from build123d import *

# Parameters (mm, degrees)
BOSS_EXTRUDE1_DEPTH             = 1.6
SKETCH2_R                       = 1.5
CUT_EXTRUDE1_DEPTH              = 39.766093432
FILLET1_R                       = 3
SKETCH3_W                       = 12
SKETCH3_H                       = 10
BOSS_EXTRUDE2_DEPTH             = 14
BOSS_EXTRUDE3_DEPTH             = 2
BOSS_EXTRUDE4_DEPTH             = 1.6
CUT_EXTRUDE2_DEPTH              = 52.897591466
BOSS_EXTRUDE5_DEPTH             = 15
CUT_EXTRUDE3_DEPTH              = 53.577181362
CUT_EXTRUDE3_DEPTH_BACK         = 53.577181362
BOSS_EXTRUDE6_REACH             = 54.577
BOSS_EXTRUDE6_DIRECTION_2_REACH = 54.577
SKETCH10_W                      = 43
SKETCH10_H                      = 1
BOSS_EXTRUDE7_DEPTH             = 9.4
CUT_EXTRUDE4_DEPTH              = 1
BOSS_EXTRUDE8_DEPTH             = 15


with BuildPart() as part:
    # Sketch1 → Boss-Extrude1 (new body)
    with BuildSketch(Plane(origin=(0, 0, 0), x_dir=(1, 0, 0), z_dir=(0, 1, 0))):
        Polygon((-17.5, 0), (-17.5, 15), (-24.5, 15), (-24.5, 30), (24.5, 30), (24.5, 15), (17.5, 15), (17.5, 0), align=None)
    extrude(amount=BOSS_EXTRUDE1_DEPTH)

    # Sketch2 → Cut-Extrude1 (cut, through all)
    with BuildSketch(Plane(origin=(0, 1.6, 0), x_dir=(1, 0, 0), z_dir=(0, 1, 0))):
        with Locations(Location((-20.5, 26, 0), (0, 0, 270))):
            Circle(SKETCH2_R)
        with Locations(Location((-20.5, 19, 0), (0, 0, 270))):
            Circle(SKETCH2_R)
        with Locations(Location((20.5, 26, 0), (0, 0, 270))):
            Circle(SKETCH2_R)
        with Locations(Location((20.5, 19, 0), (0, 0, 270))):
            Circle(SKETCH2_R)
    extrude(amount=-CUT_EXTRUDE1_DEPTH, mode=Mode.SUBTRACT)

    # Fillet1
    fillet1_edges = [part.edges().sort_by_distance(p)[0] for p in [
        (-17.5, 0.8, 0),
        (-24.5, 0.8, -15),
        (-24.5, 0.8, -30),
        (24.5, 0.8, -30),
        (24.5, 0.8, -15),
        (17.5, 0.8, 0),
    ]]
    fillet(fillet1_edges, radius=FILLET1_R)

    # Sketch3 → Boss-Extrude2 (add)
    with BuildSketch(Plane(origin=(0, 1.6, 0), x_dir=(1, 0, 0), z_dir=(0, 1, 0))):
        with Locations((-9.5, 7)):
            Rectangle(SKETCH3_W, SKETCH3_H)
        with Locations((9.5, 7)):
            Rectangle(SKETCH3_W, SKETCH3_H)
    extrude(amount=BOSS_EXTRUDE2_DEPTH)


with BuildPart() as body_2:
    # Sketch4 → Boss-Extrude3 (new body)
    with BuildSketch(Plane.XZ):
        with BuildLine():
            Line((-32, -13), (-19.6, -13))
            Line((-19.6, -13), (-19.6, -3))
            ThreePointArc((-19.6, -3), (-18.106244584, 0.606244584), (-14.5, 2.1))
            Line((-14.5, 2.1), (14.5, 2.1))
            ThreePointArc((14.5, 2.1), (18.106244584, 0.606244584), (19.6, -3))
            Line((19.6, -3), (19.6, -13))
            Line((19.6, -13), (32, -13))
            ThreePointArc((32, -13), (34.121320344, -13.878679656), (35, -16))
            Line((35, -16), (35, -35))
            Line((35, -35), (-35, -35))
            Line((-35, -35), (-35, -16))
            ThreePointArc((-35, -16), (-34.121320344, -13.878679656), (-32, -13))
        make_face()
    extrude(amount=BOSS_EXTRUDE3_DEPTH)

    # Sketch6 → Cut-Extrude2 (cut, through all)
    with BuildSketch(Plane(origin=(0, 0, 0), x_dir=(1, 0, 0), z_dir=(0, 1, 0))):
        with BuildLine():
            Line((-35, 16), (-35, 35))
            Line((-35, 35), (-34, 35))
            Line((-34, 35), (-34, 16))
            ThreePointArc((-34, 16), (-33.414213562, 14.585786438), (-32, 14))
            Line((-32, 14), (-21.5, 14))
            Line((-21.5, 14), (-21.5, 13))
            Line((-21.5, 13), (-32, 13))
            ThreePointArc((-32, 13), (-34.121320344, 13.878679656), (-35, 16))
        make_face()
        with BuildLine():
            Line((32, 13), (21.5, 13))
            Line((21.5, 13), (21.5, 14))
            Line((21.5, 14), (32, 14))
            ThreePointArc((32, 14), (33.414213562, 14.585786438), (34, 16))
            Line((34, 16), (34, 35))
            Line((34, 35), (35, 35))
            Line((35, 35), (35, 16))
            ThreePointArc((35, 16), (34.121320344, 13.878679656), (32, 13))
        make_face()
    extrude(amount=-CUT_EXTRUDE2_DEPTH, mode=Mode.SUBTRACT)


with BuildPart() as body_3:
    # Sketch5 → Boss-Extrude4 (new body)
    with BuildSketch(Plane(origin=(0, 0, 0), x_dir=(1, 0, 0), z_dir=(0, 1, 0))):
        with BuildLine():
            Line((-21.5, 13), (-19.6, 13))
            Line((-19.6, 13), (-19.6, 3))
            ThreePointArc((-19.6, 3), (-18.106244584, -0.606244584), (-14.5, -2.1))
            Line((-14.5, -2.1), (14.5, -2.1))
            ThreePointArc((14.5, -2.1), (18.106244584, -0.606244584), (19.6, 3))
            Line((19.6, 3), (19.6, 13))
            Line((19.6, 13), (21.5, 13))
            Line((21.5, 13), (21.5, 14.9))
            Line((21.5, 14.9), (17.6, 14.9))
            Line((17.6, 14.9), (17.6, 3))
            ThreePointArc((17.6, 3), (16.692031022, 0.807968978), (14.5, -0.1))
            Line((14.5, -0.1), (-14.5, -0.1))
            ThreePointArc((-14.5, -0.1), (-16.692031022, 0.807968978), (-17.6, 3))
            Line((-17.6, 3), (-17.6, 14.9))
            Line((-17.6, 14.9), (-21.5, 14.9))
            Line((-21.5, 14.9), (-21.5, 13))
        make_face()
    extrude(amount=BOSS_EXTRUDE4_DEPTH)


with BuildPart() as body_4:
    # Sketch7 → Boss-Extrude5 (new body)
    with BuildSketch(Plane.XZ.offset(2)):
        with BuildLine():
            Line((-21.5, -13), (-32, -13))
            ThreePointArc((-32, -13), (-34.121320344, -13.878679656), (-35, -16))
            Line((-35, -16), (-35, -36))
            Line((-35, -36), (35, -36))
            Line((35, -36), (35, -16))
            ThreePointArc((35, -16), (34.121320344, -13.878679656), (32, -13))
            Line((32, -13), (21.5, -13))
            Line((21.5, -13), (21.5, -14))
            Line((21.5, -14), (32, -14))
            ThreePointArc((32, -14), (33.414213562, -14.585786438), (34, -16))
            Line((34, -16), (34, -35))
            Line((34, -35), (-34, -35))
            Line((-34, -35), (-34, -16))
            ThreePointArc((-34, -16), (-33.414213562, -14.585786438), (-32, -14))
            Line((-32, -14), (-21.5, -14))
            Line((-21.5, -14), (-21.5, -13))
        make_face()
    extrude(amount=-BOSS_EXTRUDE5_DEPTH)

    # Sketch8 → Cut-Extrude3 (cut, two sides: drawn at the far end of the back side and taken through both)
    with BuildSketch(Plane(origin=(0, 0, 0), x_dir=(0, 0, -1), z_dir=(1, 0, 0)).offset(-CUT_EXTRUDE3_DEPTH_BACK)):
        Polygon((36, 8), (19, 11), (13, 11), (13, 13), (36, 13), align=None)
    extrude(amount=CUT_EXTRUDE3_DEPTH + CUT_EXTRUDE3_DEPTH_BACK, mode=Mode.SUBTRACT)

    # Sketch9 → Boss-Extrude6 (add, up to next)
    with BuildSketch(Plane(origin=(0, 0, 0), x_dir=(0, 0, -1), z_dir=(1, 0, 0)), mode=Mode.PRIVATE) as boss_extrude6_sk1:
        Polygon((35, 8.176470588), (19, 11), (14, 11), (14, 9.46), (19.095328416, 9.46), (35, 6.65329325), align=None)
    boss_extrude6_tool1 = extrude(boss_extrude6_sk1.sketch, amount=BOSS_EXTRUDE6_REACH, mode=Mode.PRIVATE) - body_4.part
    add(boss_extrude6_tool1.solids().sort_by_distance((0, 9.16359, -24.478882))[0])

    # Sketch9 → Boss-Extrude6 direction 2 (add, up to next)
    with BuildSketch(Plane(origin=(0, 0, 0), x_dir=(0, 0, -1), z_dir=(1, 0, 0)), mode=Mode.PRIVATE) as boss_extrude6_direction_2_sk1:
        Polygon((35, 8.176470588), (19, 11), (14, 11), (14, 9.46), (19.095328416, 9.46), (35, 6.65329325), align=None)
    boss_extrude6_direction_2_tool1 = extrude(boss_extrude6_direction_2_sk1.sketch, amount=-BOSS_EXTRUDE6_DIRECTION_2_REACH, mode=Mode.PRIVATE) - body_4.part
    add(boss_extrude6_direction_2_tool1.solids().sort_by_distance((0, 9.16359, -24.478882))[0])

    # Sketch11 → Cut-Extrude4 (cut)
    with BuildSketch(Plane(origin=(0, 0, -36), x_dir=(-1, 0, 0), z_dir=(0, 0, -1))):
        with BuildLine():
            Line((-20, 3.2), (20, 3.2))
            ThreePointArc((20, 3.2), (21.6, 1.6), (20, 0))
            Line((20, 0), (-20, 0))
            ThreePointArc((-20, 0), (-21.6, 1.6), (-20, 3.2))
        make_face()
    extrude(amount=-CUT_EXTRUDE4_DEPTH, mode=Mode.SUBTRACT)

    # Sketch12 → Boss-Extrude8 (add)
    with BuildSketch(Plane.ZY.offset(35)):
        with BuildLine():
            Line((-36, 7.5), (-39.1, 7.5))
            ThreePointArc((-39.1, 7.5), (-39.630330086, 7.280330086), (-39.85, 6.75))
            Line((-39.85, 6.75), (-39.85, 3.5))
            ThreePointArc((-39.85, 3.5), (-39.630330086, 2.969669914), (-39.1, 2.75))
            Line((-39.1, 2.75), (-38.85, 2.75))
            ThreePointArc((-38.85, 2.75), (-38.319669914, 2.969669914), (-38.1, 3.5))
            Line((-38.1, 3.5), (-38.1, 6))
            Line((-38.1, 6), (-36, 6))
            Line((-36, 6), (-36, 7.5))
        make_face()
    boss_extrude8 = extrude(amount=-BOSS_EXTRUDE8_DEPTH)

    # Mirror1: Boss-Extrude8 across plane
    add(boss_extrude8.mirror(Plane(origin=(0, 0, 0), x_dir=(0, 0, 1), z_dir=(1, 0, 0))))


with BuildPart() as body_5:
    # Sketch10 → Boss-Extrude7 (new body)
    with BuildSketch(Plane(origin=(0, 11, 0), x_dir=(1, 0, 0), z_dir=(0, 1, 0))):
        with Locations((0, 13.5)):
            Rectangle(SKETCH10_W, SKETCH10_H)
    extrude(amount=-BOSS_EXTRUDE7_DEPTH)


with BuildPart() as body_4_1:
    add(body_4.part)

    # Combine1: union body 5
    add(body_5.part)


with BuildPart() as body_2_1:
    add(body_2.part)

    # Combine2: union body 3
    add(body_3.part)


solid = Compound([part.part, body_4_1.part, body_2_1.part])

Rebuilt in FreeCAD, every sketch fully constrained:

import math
import FreeCAD as App
import Part
import Sketcher

V = App.Vector
Q = App.Units.Quantity


def edges_at(feature, points):
    """Names of the edges that pass closest to the given points."""
    edges = feature.Shape.Edges
    near = lambda p: min(range(len(edges)), key=lambda i: edges[i].distToShape(Part.Vertex(*p))[0])
    return sorted({f"Edge{near(p) + 1}" for p in points})

doc = App.newDocument("Part")
body = doc.addObject("PartDesign::Body", "Body")

sketch1 = body.newObject("Sketcher::SketchObject", "Sketch")
sketch1.AttachmentSupport = (doc.getObject("XZ_Plane"), [""])
sketch1.MapMode = "FlatFace"
sketch1.addGeometry(Part.LineSegment(V(-18, -15, 0), V(-18, 0, 0)), False)
sketch1.addGeometry(Part.LineSegment(V(-18, 0, 0), V(18, 0, 0)), False)
sketch1.addGeometry(Part.LineSegment(V(18, 0, 0), V(18, -15, 0)), False)
sketch1.addGeometry(Part.LineSegment(V(18, -15, 0), V(24, -15, 0)), False)
sketch1.addGeometry(Part.LineSegment(V(24, -15, 0), V(24, -30, 0)), False)
sketch1.addGeometry(Part.LineSegment(V(24, -30, 0), V(-24, -30, 0)), False)
sketch1.addGeometry(Part.LineSegment(V(-24, -30, 0), V(-24, -15, 0)), False)
sketch1.addGeometry(Part.LineSegment(V(-24, -15, 0), V(-18, -15, 0)), False)
sketch1.addConstraint(Sketcher.Constraint("Coincident", 0, 2, 1, 1))
sketch1.addConstraint(Sketcher.Constraint("Coincident", 1, 2, 2, 1))
sketch1.addConstraint(Sketcher.Constraint("Coincident", 2, 2, 3, 1))
sketch1.addConstraint(Sketcher.Constraint("Coincident", 3, 2, 4, 1))
sketch1.addConstraint(Sketcher.Constraint("Coincident", 4, 2, 5, 1))
sketch1.addConstraint(Sketcher.Constraint("Coincident", 5, 2, 6, 1))
sketch1.addConstraint(Sketcher.Constraint("Coincident", 6, 2, 7, 1))
sketch1.addConstraint(Sketcher.Constraint("Coincident", 7, 2, 0, 1))
sketch1.addConstraint(Sketcher.Constraint("Vertical", 0))
sketch1.addConstraint(Sketcher.Constraint("Horizontal", 1))
sketch1.addConstraint(Sketcher.Constraint("Vertical", 2))
sketch1.addConstraint(Sketcher.Constraint("Horizontal", 3))
sketch1.addConstraint(Sketcher.Constraint("Vertical", 4))
sketch1.addConstraint(Sketcher.Constraint("Horizontal", 5))
sketch1.addConstraint(Sketcher.Constraint("Vertical", 6))
sketch1.addConstraint(Sketcher.Constraint("Horizontal", 7))
sketch1.addConstraint(Sketcher.Constraint("Symmetric", 0, 2, 1, 2, -1, 1))
sketch1.addConstraint(Sketcher.Constraint("Symmetric", 3, 2, 6, 2, -2))
sketch1.addConstraint(Sketcher.Constraint("Equal", 2, 4))
sketch1.addConstraint(Sketcher.Constraint("DistanceX", 1, 1, 1, 2, Q("35 mm")))
sketch1.addConstraint(Sketcher.Constraint("DistanceX", 3, 1, 3, 2, Q("7 mm")))
sketch1.addConstraint(Sketcher.Constraint("DistanceY", 0, 1, 0, 2, Q("15 mm")))
pad1 = body.newObject("PartDesign::Pad", "Pad")
pad1.Profile = sketch1
pad1.Length = 1.6
pad1.Reversed = True

sketch2 = body.newObject("Sketcher::SketchObject", "Sketch001")
sketch2.AttachmentSupport = (doc.getObject("XZ_Plane"), [""])
sketch2.MapMode = "FlatFace"
sketch2.AttachmentOffset = App.Placement(V(0, 0, -1.6), App.Rotation())
sketch2.addGeometry(Part.Circle(V(-20.5, -26, 0), V(0, 0, 1), 1.5), False)
sketch2.addGeometry(Part.Circle(V(-20.5, -19, 0), V(0, 0, 1), 1.5), False)
sketch2.addGeometry(Part.Circle(V(20.5, -26, 0), V(0, 0, 1), 1.5), False)
sketch2.addGeometry(Part.Circle(V(20.5, -19, 0), V(0, 0, 1), 1.5), False)
sketch2.addConstraint(Sketcher.Constraint("Equal", 0, 1))
sketch2.addConstraint(Sketcher.Constraint("Equal", 1, 2))
sketch2.addConstraint(Sketcher.Constraint("Equal", 2, 3))
sketch2.addConstraint(Sketcher.Constraint("Symmetric", 0, 3, 2, 3, -2))
sketch2.addConstraint(Sketcher.Constraint("Symmetric", 1, 3, 3, 3, -2))
sketch2.addConstraint(Sketcher.Constraint("Vertical", 0, 3, 1, 3))
sketch2.addConstraint(Sketcher.Constraint("Diameter", 0, Q("3 mm")))
sketch2.addConstraint(Sketcher.Constraint("DistanceY", 0, 3, -1, 1, Q("26 mm")))
sketch2.addConstraint(Sketcher.Constraint("DistanceY", 1, 3, -1, 1, Q("19 mm")))
sketch2.addConstraint(Sketcher.Constraint("DistanceX", 0, 3, 2, 3, Q("41 mm")))
pocket1 = body.newObject("PartDesign::Pocket", "Pocket")
pocket1.Profile = sketch2
pocket1.Type = "ThroughAll"
pocket1.Reversed = True
doc.recompute()

fillet = body.newObject("PartDesign::Fillet", "Fillet")
fillet.Base = (pocket1, edges_at(pocket1, [
    (-17.5, 0.8, 0),
    (-24.5, 0.8, -15),
    (-24.5, 0.8, -30),
    (24.5, 0.8, -30),
    (24.5, 0.8, -15),
    (17.5, 0.8, 0),
]))
fillet.Radius = 3

sketch3 = body.newObject("Sketcher::SketchObject", "Sketch002")
sketch3.AttachmentSupport = (doc.getObject("XZ_Plane"), [""])
sketch3.MapMode = "FlatFace"
sketch3.AttachmentOffset = App.Placement(V(0, 0, -1.6), App.Rotation())
sketch3.addGeometry(Part.LineSegment(V(-16, -12, 0), V(-16, -2, 0)), False)
sketch3.addGeometry(Part.LineSegment(V(-16, -2, 0), V(-4, -2, 0)), False)
sketch3.addGeometry(Part.LineSegment(V(-4, -2, 0), V(-4, -12, 0)), False)
sketch3.addGeometry(Part.LineSegment(V(-4, -12, 0), V(-16, -12, 0)), False)
sketch3.addGeometry(Part.LineSegment(V(4, -12, 0), V(4, -2, 0)), False)
sketch3.addGeometry(Part.LineSegment(V(4, -2, 0), V(16, -2, 0)), False)
sketch3.addGeometry(Part.LineSegment(V(16, -2, 0), V(16, -12, 0)), False)
sketch3.addGeometry(Part.LineSegment(V(16, -12, 0), V(4, -12, 0)), False)
sketch3.addConstraint(Sketcher.Constraint("Coincident", 0, 2, 1, 1))
sketch3.addConstraint(Sketcher.Constraint("Coincident", 1, 2, 2, 1))
sketch3.addConstraint(Sketcher.Constraint("Coincident", 2, 2, 3, 1))
sketch3.addConstraint(Sketcher.Constraint("Coincident", 3, 2, 0, 1))
sketch3.addConstraint(Sketcher.Constraint("Coincident", 4, 2, 5, 1))
sketch3.addConstraint(Sketcher.Constraint("Coincident", 5, 2, 6, 1))
sketch3.addConstraint(Sketcher.Constraint("Coincident", 6, 2, 7, 1))
sketch3.addConstraint(Sketcher.Constraint("Coincident", 7, 2, 4, 1))
sketch3.addConstraint(Sketcher.Constraint("Vertical", 0))
sketch3.addConstraint(Sketcher.Constraint("Horizontal", 1))
sketch3.addConstraint(Sketcher.Constraint("Vertical", 2))
sketch3.addConstraint(Sketcher.Constraint("Horizontal", 3))
sketch3.addConstraint(Sketcher.Constraint("Vertical", 4))
sketch3.addConstraint(Sketcher.Constraint("Horizontal", 5))
sketch3.addConstraint(Sketcher.Constraint("Vertical", 6))
sketch3.addConstraint(Sketcher.Constraint("Horizontal", 7))
sketch3.addConstraint(Sketcher.Constraint("Symmetric", 1, 2, 4, 2, -2))
sketch3.addConstraint(Sketcher.Constraint("Symmetric", 3, 2, 6, 2, -2))
sketch3.addConstraint(Sketcher.Constraint("DistanceX", 1, 1, 1, 2, Q("12 mm")))
sketch3.addConstraint(Sketcher.Constraint("DistanceY", 0, 1, 0, 2, Q("10 mm")))
sketch3.addConstraint(Sketcher.Constraint("DistanceY", 0, 2, -1, 1, Q("2 mm")))
sketch3.addConstraint(Sketcher.Constraint("DistanceX", 1, 2, 4, 2, Q("7 mm")))
pad2 = body.newObject("PartDesign::Pad", "Pad001")
pad2.Profile = sketch3
pad2.Length = 14
pad2.Reversed = True
body2 = doc.addObject("PartDesign::Body", "Body001")

sketch4 = body2.newObject("Sketcher::SketchObject", "Sketch003")
sketch4.AttachmentSupport = (doc.getObject("XZ_Plane001"), [""])
sketch4.MapMode = "FlatFace"
sketch4.addGeometry(Part.LineSegment(V(-19.6, -13, 0), V(-32, -13, 0)), False)
sketch4.addGeometry(Part.ArcOfCircle(Part.Circle(V(-32, -16, 0), V(0, 0, 1), 3), math.radians(90), math.radians(180)), False)
sketch4.addGeometry(Part.LineSegment(V(-35, -16, 0), V(-35, -35, 0)), False)
sketch4.addGeometry(Part.LineSegment(V(-35, -35, 0), V(35, -35, 0)), False)
sketch4.addGeometry(Part.LineSegment(V(35, -35, 0), V(35, -16, 0)), False)
sketch4.addGeometry(Part.ArcOfCircle(Part.Circle(V(32, -16, 0), V(0, 0, 1), 3), math.radians(0), math.radians(90)), False)
sketch4.addGeometry(Part.LineSegment(V(32, -13, 0), V(19.6, -13, 0)), False)
sketch4.addGeometry(Part.LineSegment(V(19.6, -13, 0), V(19.6, -3, 0)), False)
sketch4.addGeometry(Part.ArcOfCircle(Part.Circle(V(14.5, -3, 0), V(0, 0, 1), 5.1), math.radians(0), math.radians(90)), False)
sketch4.addGeometry(Part.LineSegment(V(14.5, 2.1, 0), V(-14.5, 2.1, 0)), False)
sketch4.addGeometry(Part.ArcOfCircle(Part.Circle(V(-14.5, -3, 0), V(0, 0, 1), 5.1), math.radians(90), math.radians(180)), False)
sketch4.addGeometry(Part.LineSegment(V(-19.6, -3, 0), V(-19.6, -13, 0)), False)
sketch4.addConstraint(Sketcher.Constraint("Tangent", 0, 2, 1, 1))
sketch4.addConstraint(Sketcher.Constraint("Tangent", 1, 2, 2, 1))
sketch4.addConstraint(Sketcher.Constraint("Coincident", 2, 2, 3, 1))
sketch4.addConstraint(Sketcher.Constraint("Coincident", 3, 2, 4, 1))
sketch4.addConstraint(Sketcher.Constraint("Tangent", 4, 2, 5, 1))
sketch4.addConstraint(Sketcher.Constraint("Tangent", 5, 2, 6, 1))
sketch4.addConstraint(Sketcher.Constraint("Coincident", 6, 2, 7, 1))
sketch4.addConstraint(Sketcher.Constraint("Tangent", 7, 2, 8, 1))
sketch4.addConstraint(Sketcher.Constraint("Tangent", 8, 2, 9, 1))
sketch4.addConstraint(Sketcher.Constraint("Tangent", 9, 2, 10, 1))
sketch4.addConstraint(Sketcher.Constraint("Tangent", 10, 2, 11, 1))
sketch4.addConstraint(Sketcher.Constraint("Coincident", 11, 2, 0, 1))
sketch4.addConstraint(Sketcher.Constraint("Horizontal", 0))
sketch4.addConstraint(Sketcher.Constraint("Vertical", 2))
sketch4.addConstraint(Sketcher.Constraint("Horizontal", 3))
sketch4.addConstraint(Sketcher.Constraint("Vertical", 4))
sketch4.addConstraint(Sketcher.Constraint("Horizontal", 6))
sketch4.addConstraint(Sketcher.Constraint("Vertical", 7))
sketch4.addConstraint(Sketcher.Constraint("Horizontal", 9))
sketch4.addConstraint(Sketcher.Constraint("Vertical", 11))
sketch4.addConstraint(Sketcher.Constraint("Equal", 1, 5))
sketch4.addConstraint(Sketcher.Constraint("Equal", 8, 10))
sketch4.addConstraint(Sketcher.Constraint("Symmetric", 1, 3, 5, 3, -2))
sketch4.addConstraint(Sketcher.Constraint("Equal", 0, 6))
sketch4.addConstraint(Sketcher.Constraint("Radius", 1, Q("3 mm")))
sketch4.addConstraint(Sketcher.Constraint("Radius", 8, Q("5.1 mm")))
sketch4.addConstraint(Sketcher.Constraint("DistanceX", 3, 1, 3, 2, Q("70 mm")))
sketch4.addConstraint(Sketcher.Constraint("DistanceX", 9, 2, 9, 1, Q("29 mm")))
sketch4.addConstraint(Sketcher.Constraint("DistanceY", 2, 2, 2, 1, Q("19 mm")))
sketch4.addConstraint(Sketcher.Constraint("DistanceY", 7, 1, 7, 2, Q("10 mm")))
sketch4.addConstraint(Sketcher.Constraint("DistanceY", 1, 3, -1, 1, Q("16 mm")))
pad3 = body2.newObject("PartDesign::Pad", "Pad002")
pad3.Profile = sketch4
pad3.Length = 2

sketch5 = body2.newObject("Sketcher::SketchObject", "Sketch004")
sketch5.AttachmentSupport = (doc.getObject("XZ_Plane001"), [""])
sketch5.MapMode = "FlatFace"
sketch5.addGeometry(Part.LineSegment(V(-35, -35, 0), V(-35, -16, 0)), False)
sketch5.addGeometry(Part.ArcOfCircle(Part.Circle(V(-32, -16, 0), V(0, 0, 1), 3), math.radians(90), math.radians(180)), False)
sketch5.addGeometry(Part.LineSegment(V(-32, -13, 0), V(-21.5, -13, 0)), False)
sketch5.addGeometry(Part.LineSegment(V(-21.5, -13, 0), V(-21.5, -14, 0)), False)
sketch5.addGeometry(Part.LineSegment(V(-21.5, -14, 0), V(-32, -14, 0)), False)
sketch5.addGeometry(Part.ArcOfCircle(Part.Circle(V(-32, -16, 0), V(0, 0, 1), 2), math.radians(90), math.radians(180)), False)
sketch5.addGeometry(Part.LineSegment(V(-34, -16, 0), V(-34, -35, 0)), False)
sketch5.addGeometry(Part.LineSegment(V(-34, -35, 0), V(-35, -35, 0)), False)
sketch5.addGeometry(Part.LineSegment(V(21.5, -13, 0), V(32, -13, 0)), False)
sketch5.addGeometry(Part.ArcOfCircle(Part.Circle(V(32, -16, 0), V(0, 0, 1), 3), math.radians(0), math.radians(90)), False)
sketch5.addGeometry(Part.LineSegment(V(35, -16, 0), V(35, -35, 0)), False)
sketch5.addGeometry(Part.LineSegment(V(35, -35, 0), V(34, -35, 0)), False)
sketch5.addGeometry(Part.LineSegment(V(34, -35, 0), V(34, -16, 0)), False)
sketch5.addGeometry(Part.ArcOfCircle(Part.Circle(V(32, -16, 0), V(0, 0, 1), 2), math.radians(0), math.radians(90)), False)
sketch5.addGeometry(Part.LineSegment(V(32, -14, 0), V(21.5, -14, 0)), False)
sketch5.addGeometry(Part.LineSegment(V(21.5, -14, 0), V(21.5, -13, 0)), False)
sketch5.addConstraint(Sketcher.Constraint("Tangent", 0, 2, 1, 2))
sketch5.addConstraint(Sketcher.Constraint("Tangent", 1, 1, 2, 1))
sketch5.addConstraint(Sketcher.Constraint("Coincident", 2, 2, 3, 1))
sketch5.addConstraint(Sketcher.Constraint("Coincident", 3, 2, 4, 1))
sketch5.addConstraint(Sketcher.Constraint("Tangent", 4, 2, 5, 1))
sketch5.addConstraint(Sketcher.Constraint("Tangent", 5, 2, 6, 1))
sketch5.addConstraint(Sketcher.Constraint("Coincident", 6, 2, 7, 1))
sketch5.addConstraint(Sketcher.Constraint("Coincident", 7, 2, 0, 1))
sketch5.addConstraint(Sketcher.Constraint("Tangent", 8, 2, 9, 2))
sketch5.addConstraint(Sketcher.Constraint("Tangent", 9, 1, 10, 1))
sketch5.addConstraint(Sketcher.Constraint("Coincident", 10, 2, 11, 1))
sketch5.addConstraint(Sketcher.Constraint("Coincident", 11, 2, 12, 1))
sketch5.addConstraint(Sketcher.Constraint("Tangent", 12, 2, 13, 1))
sketch5.addConstraint(Sketcher.Constraint("Tangent", 13, 2, 14, 1))
sketch5.addConstraint(Sketcher.Constraint("Coincident", 14, 2, 15, 1))
sketch5.addConstraint(Sketcher.Constraint("Coincident", 15, 2, 8, 1))
sketch5.addConstraint(Sketcher.Constraint("Vertical", 0))
sketch5.addConstraint(Sketcher.Constraint("Horizontal", 2))
sketch5.addConstraint(Sketcher.Constraint("Vertical", 3))
sketch5.addConstraint(Sketcher.Constraint("Horizontal", 4))
sketch5.addConstraint(Sketcher.Constraint("Vertical", 6))
sketch5.addConstraint(Sketcher.Constraint("Horizontal", 7))
sketch5.addConstraint(Sketcher.Constraint("Horizontal", 8))
sketch5.addConstraint(Sketcher.Constraint("Vertical", 10))
sketch5.addConstraint(Sketcher.Constraint("Horizontal", 11))
sketch5.addConstraint(Sketcher.Constraint("Vertical", 12))
sketch5.addConstraint(Sketcher.Constraint("Horizontal", 14))
sketch5.addConstraint(Sketcher.Constraint("Vertical", 15))
sketch5.addConstraint(Sketcher.Constraint("Coincident", 5, 3, 1, 3))
sketch5.addConstraint(Sketcher.Constraint("Coincident", 13, 3, 9, 3))
sketch5.addConstraint(Sketcher.Constraint("Equal", 1, 9))
sketch5.addConstraint(Sketcher.Constraint("Equal", 5, 13))
sketch5.addConstraint(Sketcher.Constraint("Symmetric", 1, 3, 9, 3, -2))
sketch5.addConstraint(Sketcher.Constraint("Horizontal", 7, 2, 10, 2))
sketch5.addConstraint(Sketcher.Constraint("Equal", 4, 8))
sketch5.addConstraint(Sketcher.Constraint("Radius", 1, Q("3 mm")))
sketch5.addConstraint(Sketcher.Constraint("Radius", 5, Q("2 mm")))
sketch5.addConstraint(Sketcher.Constraint("DistanceY", 0, 1, 0, 2, Q("19 mm")))
sketch5.addConstraint(Sketcher.Constraint("DistanceX", 2, 1, 2, 2, Q("10.5 mm")))
sketch5.addConstraint(Sketcher.Constraint("DistanceX", 1, 3, -1, 1, Q("32 mm")))
sketch5.addConstraint(Sketcher.Constraint("DistanceY", 1, 3, -1, 1, Q("16 mm")))
pocket2 = body2.newObject("PartDesign::Pocket", "Pocket001")
pocket2.Profile = sketch5
pocket2.Type = "ThroughAll"
pocket2.Reversed = True
body3 = doc.addObject("PartDesign::Body", "Body002")

sketch6 = body3.newObject("Sketcher::SketchObject", "Sketch005")
sketch6.AttachmentSupport = (doc.getObject("XZ_Plane002"), [""])
sketch6.MapMode = "FlatFace"
sketch6.addGeometry(Part.LineSegment(V(-21.5, -13, 0), V(-19.6, -13, 0)), False)
sketch6.addGeometry(Part.LineSegment(V(-19.6, -13, 0), V(-19.6, -3, 0)), False)
sketch6.addGeometry(Part.ArcOfCircle(Part.Circle(V(-14.5, -3, 0), V(0, 0, 1), 5.1), math.radians(90), math.radians(180)), False)
sketch6.addGeometry(Part.LineSegment(V(-14.5, 2.1, 0), V(14.5, 2.1, 0)), False)
sketch6.addGeometry(Part.ArcOfCircle(Part.Circle(V(14.5, -3, 0), V(0, 0, 1), 5.1), math.radians(0), math.radians(90)), False)
sketch6.addGeometry(Part.LineSegment(V(19.6, -3, 0), V(19.6, -13, 0)), False)
sketch6.addGeometry(Part.LineSegment(V(19.6, -13, 0), V(21.5, -13, 0)), False)
sketch6.addGeometry(Part.LineSegment(V(21.5, -13, 0), V(21.5, -14.9, 0)), False)
sketch6.addGeometry(Part.LineSegment(V(21.5, -14.9, 0), V(17.6, -14.9, 0)), False)
sketch6.addGeometry(Part.LineSegment(V(17.6, -14.9, 0), V(17.6, -3, 0)), False)
sketch6.addGeometry(Part.ArcOfCircle(Part.Circle(V(14.5, -3, 0), V(0, 0, 1), 3.1), math.radians(0), math.radians(90)), False)
sketch6.addGeometry(Part.LineSegment(V(14.5, 0.1, 0), V(-14.5, 0.1, 0)), False)
sketch6.addGeometry(Part.ArcOfCircle(Part.Circle(V(-14.5, -3, 0), V(0, 0, 1), 3.1), math.radians(90), math.radians(180)), False)
sketch6.addGeometry(Part.LineSegment(V(-17.6, -3, 0), V(-17.6, -14.9, 0)), False)
sketch6.addGeometry(Part.LineSegment(V(-17.6, -14.9, 0), V(-21.5, -14.9, 0)), False)
sketch6.addGeometry(Part.LineSegment(V(-21.5, -14.9, 0), V(-21.5, -13, 0)), False)
sketch6.addConstraint(Sketcher.Constraint("Coincident", 0, 2, 1, 1))
sketch6.addConstraint(Sketcher.Constraint("Tangent", 1, 2, 2, 2))
sketch6.addConstraint(Sketcher.Constraint("Tangent", 2, 1, 3, 1))
sketch6.addConstraint(Sketcher.Constraint("Tangent", 3, 2, 4, 2))
sketch6.addConstraint(Sketcher.Constraint("Tangent", 4, 1, 5, 1))
sketch6.addConstraint(Sketcher.Constraint("Coincident", 5, 2, 6, 1))
sketch6.addConstraint(Sketcher.Constraint("Coincident", 6, 2, 7, 1))
sketch6.addConstraint(Sketcher.Constraint("Coincident", 7, 2, 8, 1))
sketch6.addConstraint(Sketcher.Constraint("Coincident", 8, 2, 9, 1))
sketch6.addConstraint(Sketcher.Constraint("Tangent", 9, 2, 10, 1))
sketch6.addConstraint(Sketcher.Constraint("Tangent", 10, 2, 11, 1))
sketch6.addConstraint(Sketcher.Constraint("Tangent", 11, 2, 12, 1))
sketch6.addConstraint(Sketcher.Constraint("Tangent", 12, 2, 13, 1))
sketch6.addConstraint(Sketcher.Constraint("Coincident", 13, 2, 14, 1))
sketch6.addConstraint(Sketcher.Constraint("Coincident", 14, 2, 15, 1))
sketch6.addConstraint(Sketcher.Constraint("Coincident", 15, 2, 0, 1))
sketch6.addConstraint(Sketcher.Constraint("Horizontal", 0))
sketch6.addConstraint(Sketcher.Constraint("Vertical", 1))
sketch6.addConstraint(Sketcher.Constraint("Horizontal", 3))
sketch6.addConstraint(Sketcher.Constraint("Vertical", 5))
sketch6.addConstraint(Sketcher.Constraint("Horizontal", 6))
sketch6.addConstraint(Sketcher.Constraint("Vertical", 7))
sketch6.addConstraint(Sketcher.Constraint("Horizontal", 8))
sketch6.addConstraint(Sketcher.Constraint("Vertical", 9))
sketch6.addConstraint(Sketcher.Constraint("Horizontal", 11))
sketch6.addConstraint(Sketcher.Constraint("Vertical", 13))
sketch6.addConstraint(Sketcher.Constraint("Horizontal", 14))
sketch6.addConstraint(Sketcher.Constraint("Vertical", 15))
sketch6.addConstraint(Sketcher.Constraint("Coincident", 10, 3, 4, 3))
sketch6.addConstraint(Sketcher.Constraint("Coincident", 12, 3, 2, 3))
sketch6.addConstraint(Sketcher.Constraint("Equal", 2, 4))
sketch6.addConstraint(Sketcher.Constraint("Symmetric", 0, 2, 5, 2, -2))
sketch6.addConstraint(Sketcher.Constraint("Symmetric", 7, 2, 14, 2, -2))
sketch6.addConstraint(Sketcher.Constraint("Equal", 6, 7))
sketch6.addConstraint(Sketcher.Constraint("Radius", 2, Q("5.1 mm")))
sketch6.addConstraint(Sketcher.Constraint("Radius", 10, Q("3.1 mm")))
sketch6.addConstraint(Sketcher.Constraint("DistanceX", 3, 1, 3, 2, Q("29 mm")))
sketch6.addConstraint(Sketcher.Constraint("DistanceY", 1, 1, 1, 2, Q("10 mm")))
sketch6.addConstraint(Sketcher.Constraint("DistanceX", 0, 1, 0, 2, Q("1.9 mm")))
sketch6.addConstraint(Sketcher.Constraint("DistanceY", 2, 3, -1, 1, Q("3 mm")))
pad4 = body3.newObject("PartDesign::Pad", "Pad003")
pad4.Profile = sketch6
pad4.Length = 1.6
pad4.Reversed = True
body4 = doc.addObject("PartDesign::Body", "Body003")

sketch7 = body4.newObject("Sketcher::SketchObject", "Sketch006")
sketch7.AttachmentSupport = (doc.getObject("XZ_Plane003"), [""])
sketch7.MapMode = "FlatFace"
sketch7.AttachmentOffset = App.Placement(V(0, 0, 2), App.Rotation())
sketch7.addGeometry(Part.LineSegment(V(-21.5, -13, 0), V(-32, -13, 0)), False)
sketch7.addGeometry(Part.ArcOfCircle(Part.Circle(V(-32, -16, 0), V(0, 0, 1), 3), math.radians(90), math.radians(180)), False)
sketch7.addGeometry(Part.LineSegment(V(-35, -16, 0), V(-35, -36, 0)), False)
sketch7.addGeometry(Part.LineSegment(V(-35, -36, 0), V(35, -36, 0)), False)
sketch7.addGeometry(Part.LineSegment(V(35, -36, 0), V(35, -16, 0)), False)
sketch7.addGeometry(Part.ArcOfCircle(Part.Circle(V(32, -16, 0), V(0, 0, 1), 3), math.radians(0), math.radians(90)), False)
sketch7.addGeometry(Part.LineSegment(V(32, -13, 0), V(21.5, -13, 0)), False)
sketch7.addGeometry(Part.LineSegment(V(21.5, -13, 0), V(21.5, -14, 0)), False)
sketch7.addGeometry(Part.LineSegment(V(21.5, -14, 0), V(32, -14, 0)), False)
sketch7.addGeometry(Part.ArcOfCircle(Part.Circle(V(32, -16, 0), V(0, 0, 1), 2), math.radians(0), math.radians(90)), False)
sketch7.addGeometry(Part.LineSegment(V(34, -16, 0), V(34, -35, 0)), False)
sketch7.addGeometry(Part.LineSegment(V(34, -35, 0), V(-34, -35, 0)), False)
sketch7.addGeometry(Part.LineSegment(V(-34, -35, 0), V(-34, -16, 0)), False)
sketch7.addGeometry(Part.ArcOfCircle(Part.Circle(V(-32, -16, 0), V(0, 0, 1), 2), math.radians(90), math.radians(180)), False)
sketch7.addGeometry(Part.LineSegment(V(-32, -14, 0), V(-21.5, -14, 0)), False)
sketch7.addGeometry(Part.LineSegment(V(-21.5, -14, 0), V(-21.5, -13, 0)), False)
sketch7.addConstraint(Sketcher.Constraint("Tangent", 0, 2, 1, 1))
sketch7.addConstraint(Sketcher.Constraint("Tangent", 1, 2, 2, 1))
sketch7.addConstraint(Sketcher.Constraint("Coincident", 2, 2, 3, 1))
sketch7.addConstraint(Sketcher.Constraint("Coincident", 3, 2, 4, 1))
sketch7.addConstraint(Sketcher.Constraint("Tangent", 4, 2, 5, 1))
sketch7.addConstraint(Sketcher.Constraint("Tangent", 5, 2, 6, 1))
sketch7.addConstraint(Sketcher.Constraint("Coincident", 6, 2, 7, 1))
sketch7.addConstraint(Sketcher.Constraint("Coincident", 7, 2, 8, 1))
sketch7.addConstraint(Sketcher.Constraint("Tangent", 8, 2, 9, 2))
sketch7.addConstraint(Sketcher.Constraint("Tangent", 9, 1, 10, 1))
sketch7.addConstraint(Sketcher.Constraint("Coincident", 10, 2, 11, 1))
sketch7.addConstraint(Sketcher.Constraint("Coincident", 11, 2, 12, 1))
sketch7.addConstraint(Sketcher.Constraint("Tangent", 12, 2, 13, 2))
sketch7.addConstraint(Sketcher.Constraint("Tangent", 13, 1, 14, 1))
sketch7.addConstraint(Sketcher.Constraint("Coincident", 14, 2, 15, 1))
sketch7.addConstraint(Sketcher.Constraint("Coincident", 15, 2, 0, 1))
sketch7.addConstraint(Sketcher.Constraint("Horizontal", 0))
sketch7.addConstraint(Sketcher.Constraint("Vertical", 2))
sketch7.addConstraint(Sketcher.Constraint("Horizontal", 3))
sketch7.addConstraint(Sketcher.Constraint("Vertical", 4))
sketch7.addConstraint(Sketcher.Constraint("Horizontal", 6))
sketch7.addConstraint(Sketcher.Constraint("Vertical", 7))
sketch7.addConstraint(Sketcher.Constraint("Horizontal", 8))
sketch7.addConstraint(Sketcher.Constraint("Vertical", 10))
sketch7.addConstraint(Sketcher.Constraint("Horizontal", 11))
sketch7.addConstraint(Sketcher.Constraint("Vertical", 12))
sketch7.addConstraint(Sketcher.Constraint("Horizontal", 14))
sketch7.addConstraint(Sketcher.Constraint("Vertical", 15))
sketch7.addConstraint(Sketcher.Constraint("Coincident", 9, 3, 5, 3))
sketch7.addConstraint(Sketcher.Constraint("Coincident", 13, 3, 1, 3))
sketch7.addConstraint(Sketcher.Constraint("Equal", 1, 5))
sketch7.addConstraint(Sketcher.Constraint("Equal", 9, 13))
sketch7.addConstraint(Sketcher.Constraint("Symmetric", 1, 3, 5, 3, -2))
sketch7.addConstraint(Sketcher.Constraint("Equal", 0, 6))
sketch7.addConstraint(Sketcher.Constraint("Radius", 1, Q("3 mm")))
sketch7.addConstraint(Sketcher.Constraint("Radius", 9, Q("2 mm")))
sketch7.addConstraint(Sketcher.Constraint("DistanceX", 3, 1, 3, 2, Q("70 mm")))
sketch7.addConstraint(Sketcher.Constraint("DistanceY", 2, 2, 2, 1, Q("20 mm")))
sketch7.addConstraint(Sketcher.Constraint("DistanceY", 10, 2, 10, 1, Q("19 mm")))
sketch7.addConstraint(Sketcher.Constraint("DistanceX", 0, 2, 0, 1, Q("10.5 mm")))
sketch7.addConstraint(Sketcher.Constraint("DistanceY", 1, 3, -1, 1, Q("16 mm")))
pad5 = body4.newObject("PartDesign::Pad", "Pad004")
pad5.Profile = sketch7
pad5.Length = 15
pad5.Reversed = True

sketch8 = body4.newObject("Sketcher::SketchObject", "Sketch007")
sketch8.AttachmentSupport = (doc.getObject("YZ_Plane003"), [""])
sketch8.MapMode = "FlatFace"
sketch8.addGeometry(Part.LineSegment(V(11, -19, 0), V(8, -36, 0)), False)
sketch8.addGeometry(Part.LineSegment(V(8, -36, 0), V(13, -36, 0)), False)
sketch8.addGeometry(Part.LineSegment(V(13, -36, 0), V(13, -13, 0)), False)
sketch8.addGeometry(Part.LineSegment(V(13, -13, 0), V(11, -13, 0)), False)
sketch8.addGeometry(Part.LineSegment(V(11, -13, 0), V(11, -19, 0)), False)
sketch8.addConstraint(Sketcher.Constraint("Coincident", 0, 2, 1, 1))
sketch8.addConstraint(Sketcher.Constraint("Coincident", 1, 2, 2, 1))
sketch8.addConstraint(Sketcher.Constraint("Coincident", 2, 2, 3, 1))
sketch8.addConstraint(Sketcher.Constraint("Coincident", 3, 2, 4, 1))
sketch8.addConstraint(Sketcher.Constraint("Coincident", 4, 2, 0, 1))
sketch8.addConstraint(Sketcher.Constraint("Horizontal", 1))
sketch8.addConstraint(Sketcher.Constraint("Vertical", 2))
sketch8.addConstraint(Sketcher.Constraint("Horizontal", 3))
sketch8.addConstraint(Sketcher.Constraint("Vertical", 4))
sketch8.addConstraint(Sketcher.Constraint("DistanceX", 1, 1, 1, 2, Q("5 mm")))
sketch8.addConstraint(Sketcher.Constraint("DistanceX", 3, 2, 3, 1, Q("2 mm")))
sketch8.addConstraint(Sketcher.Constraint("DistanceY", 2, 1, 2, 2, Q("23 mm")))
sketch8.addConstraint(Sketcher.Constraint("DistanceY", 4, 2, 4, 1, Q("6 mm")))
sketch8.addConstraint(Sketcher.Constraint("DistanceX", -1, 1, 0, 2, Q("8 mm")))
sketch8.addConstraint(Sketcher.Constraint("DistanceY", 0, 2, -1, 1, Q("36 mm")))
pocket3 = body4.newObject("PartDesign::Pocket", "Pocket002")
pocket3.Profile = sketch8
pocket3.Type = "ThroughAll"
pocket3.Midplane = True

sketch9 = body4.newObject("Sketcher::SketchObject", "Sketch008")
sketch9.AttachmentSupport = (doc.getObject("YZ_Plane003"), [""])
sketch9.MapMode = "FlatFace"
sketch9.addGeometry(Part.LineSegment(V(8.176471, -35, 0), V(11, -19, 0)), False)
sketch9.addGeometry(Part.LineSegment(V(11, -19, 0), V(11, -14, 0)), False)
sketch9.addGeometry(Part.LineSegment(V(11, -14, 0), V(9.46, -14, 0)), False)
sketch9.addGeometry(Part.LineSegment(V(9.46, -14, 0), V(9.46, -19.095328, 0)), False)
sketch9.addGeometry(Part.LineSegment(V(9.46, -19.095328, 0), V(6.653293, -35, 0)), False)
sketch9.addGeometry(Part.LineSegment(V(6.653293, -35, 0), V(8.176471, -35, 0)), False)
sketch9.addConstraint(Sketcher.Constraint("Coincident", 0, 2, 1, 1))
sketch9.addConstraint(Sketcher.Constraint("Coincident", 1, 2, 2, 1))
sketch9.addConstraint(Sketcher.Constraint("Coincident", 2, 2, 3, 1))
sketch9.addConstraint(Sketcher.Constraint("Coincident", 3, 2, 4, 1))
sketch9.addConstraint(Sketcher.Constraint("Coincident", 4, 2, 5, 1))
sketch9.addConstraint(Sketcher.Constraint("Coincident", 5, 2, 0, 1))
sketch9.addConstraint(Sketcher.Constraint("Vertical", 1))
sketch9.addConstraint(Sketcher.Constraint("Horizontal", 2))
sketch9.addConstraint(Sketcher.Constraint("Vertical", 3))
sketch9.addConstraint(Sketcher.Constraint("Horizontal", 5))
sketch9.addConstraint(Sketcher.Constraint("DistanceY", 1, 1, 1, 2, Q("5 mm")))
sketch9.addConstraint(Sketcher.Constraint("DistanceX", -1, 1, 0, 2, Q("11 mm")))
sketch9.addConstraint(Sketcher.Constraint("DistanceY", 0, 2, -1, 1, Q("19 mm")))
sketch9.addConstraint(Sketcher.Constraint("DistanceY", 4, 2, -1, 1, Q("35 mm")))
sketch9.addConstraint(Sketcher.Constraint("DistanceX", 2, 2, 2, 1, Q("1.54 mm")))
sketch9.addConstraint(Sketcher.Constraint("DistanceY", 3, 2, 3, 1, Q("5.095328 mm")))
sketch9.addConstraint(Sketcher.Constraint("DistanceX", 5, 1, 5, 2, Q("1.523177 mm")))
sketch9.addConstraint(Sketcher.Constraint("DistanceX", -1, 1, 5, 2, Q("8.176471 mm")))
pad6 = body4.newObject("PartDesign::Pad", "Pad005")
pad6.Profile = sketch9
pad6.Type = "UpToFirst"

sketch10 = body4.newObject("Sketcher::SketchObject", "Sketch009")
sketch10.AttachmentSupport = (doc.getObject("YZ_Plane003"), [""])
sketch10.MapMode = "FlatFace"
sketch10.addGeometry(Part.LineSegment(V(8.176471, -35, 0), V(11, -19, 0)), False)
sketch10.addGeometry(Part.LineSegment(V(11, -19, 0), V(11, -14, 0)), False)
sketch10.addGeometry(Part.LineSegment(V(11, -14, 0), V(9.46, -14, 0)), False)
sketch10.addGeometry(Part.LineSegment(V(9.46, -14, 0), V(9.46, -19.095328, 0)), False)
sketch10.addGeometry(Part.LineSegment(V(9.46, -19.095328, 0), V(6.653293, -35, 0)), False)
sketch10.addGeometry(Part.LineSegment(V(6.653293, -35, 0), V(8.176471, -35, 0)), False)
sketch10.addConstraint(Sketcher.Constraint("Coincident", 0, 2, 1, 1))
sketch10.addConstraint(Sketcher.Constraint("Coincident", 1, 2, 2, 1))
sketch10.addConstraint(Sketcher.Constraint("Coincident", 2, 2, 3, 1))
sketch10.addConstraint(Sketcher.Constraint("Coincident", 3, 2, 4, 1))
sketch10.addConstraint(Sketcher.Constraint("Coincident", 4, 2, 5, 1))
sketch10.addConstraint(Sketcher.Constraint("Coincident", 5, 2, 0, 1))
sketch10.addConstraint(Sketcher.Constraint("Vertical", 1))
sketch10.addConstraint(Sketcher.Constraint("Horizontal", 2))
sketch10.addConstraint(Sketcher.Constraint("Vertical", 3))
sketch10.addConstraint(Sketcher.Constraint("Horizontal", 5))
sketch10.addConstraint(Sketcher.Constraint("DistanceY", 1, 1, 1, 2, Q("5 mm")))
sketch10.addConstraint(Sketcher.Constraint("DistanceX", -1, 1, 0, 2, Q("11 mm")))
sketch10.addConstraint(Sketcher.Constraint("DistanceY", 0, 2, -1, 1, Q("19 mm")))
sketch10.addConstraint(Sketcher.Constraint("DistanceY", 4, 2, -1, 1, Q("35 mm")))
sketch10.addConstraint(Sketcher.Constraint("DistanceX", 2, 2, 2, 1, Q("1.54 mm")))
sketch10.addConstraint(Sketcher.Constraint("DistanceY", 3, 2, 3, 1, Q("5.095328 mm")))
sketch10.addConstraint(Sketcher.Constraint("DistanceX", 5, 1, 5, 2, Q("1.523177 mm")))
sketch10.addConstraint(Sketcher.Constraint("DistanceX", -1, 1, 5, 2, Q("8.176471 mm")))
pad7 = body4.newObject("PartDesign::Pad", "Pad006")
pad7.Profile = sketch10
pad7.Type = "UpToFirst"
pad7.Reversed = True

sketch11 = body4.newObject("Sketcher::SketchObject", "Sketch010")
sketch11.AttachmentSupport = (doc.getObject("XY_Plane003"), [""])
sketch11.MapMode = "FlatFace"
sketch11.AttachmentOffset = App.Placement(V(0, 0, -36), App.Rotation())
sketch11.addGeometry(Part.LineSegment(V(-20, 3.2, 0), V(20, 3.2, 0)), False)
sketch11.addGeometry(Part.ArcOfCircle(Part.Circle(V(20, 1.6, 0), V(0, 0, 1), 1.6), math.radians(-90), math.radians(90)), False)
sketch11.addGeometry(Part.LineSegment(V(20, 0, 0), V(-20, 0, 0)), False)
sketch11.addGeometry(Part.ArcOfCircle(Part.Circle(V(-20, 1.6, 0), V(0, 0, 1), 1.6), math.radians(90), math.radians(270)), False)
sketch11.addConstraint(Sketcher.Constraint("Tangent", 0, 2, 1, 2))
sketch11.addConstraint(Sketcher.Constraint("Tangent", 1, 1, 2, 1))
sketch11.addConstraint(Sketcher.Constraint("Tangent", 2, 2, 3, 2))
sketch11.addConstraint(Sketcher.Constraint("Tangent", 3, 1, 0, 1))
sketch11.addConstraint(Sketcher.Constraint("Horizontal", 0))
sketch11.addConstraint(Sketcher.Constraint("Horizontal", 2))
sketch11.addConstraint(Sketcher.Constraint("Symmetric", 1, 1, 2, 2, -1, 1))
sketch11.addConstraint(Sketcher.Constraint("Radius", 1, Q("1.6 mm")))
sketch11.addConstraint(Sketcher.Constraint("DistanceX", 0, 1, 0, 2, Q("40 mm")))
pocket4 = body4.newObject("PartDesign::Pocket", "Pocket003")
pocket4.Profile = sketch11
pocket4.Length = 1
pocket4.Reversed = True

sketch12 = body4.newObject("Sketcher::SketchObject", "Sketch011")
sketch12.AttachmentSupport = (doc.getObject("YZ_Plane003"), [""])
sketch12.MapMode = "FlatFace"
sketch12.AttachmentOffset = App.Placement(V(0, 0, -35), App.Rotation())
sketch12.addGeometry(Part.LineSegment(V(7.5, -36, 0), V(7.5, -39.1, 0)), False)
sketch12.addGeometry(Part.ArcOfCircle(Part.Circle(V(6.75, -39.1, 0), V(0, 0, 1), 0.75), math.radians(-90), math.radians(0)), False)
sketch12.addGeometry(Part.LineSegment(V(6.75, -39.85, 0), V(3.5, -39.85, 0)), False)
sketch12.addGeometry(Part.ArcOfCircle(Part.Circle(V(3.5, -39.1, 0), V(0, 0, 1), 0.75), math.radians(180), math.radians(270)), False)
sketch12.addGeometry(Part.LineSegment(V(2.75, -39.1, 0), V(2.75, -38.85, 0)), False)
sketch12.addGeometry(Part.ArcOfCircle(Part.Circle(V(3.5, -38.85, 0), V(0, 0, 1), 0.75), math.radians(90), math.radians(180)), False)
sketch12.addGeometry(Part.LineSegment(V(3.5, -38.1, 0), V(6, -38.1, 0)), False)
sketch12.addGeometry(Part.LineSegment(V(6, -38.1, 0), V(6, -36, 0)), False)
sketch12.addGeometry(Part.LineSegment(V(6, -36, 0), V(7.5, -36, 0)), False)
sketch12.addConstraint(Sketcher.Constraint("Tangent", 0, 2, 1, 2))
sketch12.addConstraint(Sketcher.Constraint("Tangent", 1, 1, 2, 1))
sketch12.addConstraint(Sketcher.Constraint("Tangent", 2, 2, 3, 2))
sketch12.addConstraint(Sketcher.Constraint("Tangent", 3, 1, 4, 1))
sketch12.addConstraint(Sketcher.Constraint("Tangent", 4, 2, 5, 2))
sketch12.addConstraint(Sketcher.Constraint("Tangent", 5, 1, 6, 1))
sketch12.addConstraint(Sketcher.Constraint("Coincident", 6, 2, 7, 1))
sketch12.addConstraint(Sketcher.Constraint("Coincident", 7, 2, 8, 1))
sketch12.addConstraint(Sketcher.Constraint("Coincident", 8, 2, 0, 1))
sketch12.addConstraint(Sketcher.Constraint("Vertical", 0))
sketch12.addConstraint(Sketcher.Constraint("Horizontal", 2))
sketch12.addConstraint(Sketcher.Constraint("Vertical", 4))
sketch12.addConstraint(Sketcher.Constraint("Horizontal", 6))
sketch12.addConstraint(Sketcher.Constraint("Vertical", 7))
sketch12.addConstraint(Sketcher.Constraint("Horizontal", 8))
sketch12.addConstraint(Sketcher.Constraint("Equal", 1, 3))
sketch12.addConstraint(Sketcher.Constraint("Equal", 3, 5))
sketch12.addConstraint(Sketcher.Constraint("Radius", 1, Q("0.75 mm")))
sketch12.addConstraint(Sketcher.Constraint("DistanceX", 6, 1, 6, 2, Q("2.5 mm")))
sketch12.addConstraint(Sketcher.Constraint("DistanceX", 8, 1, 8, 2, Q("1.5 mm")))
sketch12.addConstraint(Sketcher.Constraint("DistanceY", 0, 2, 0, 1, Q("3.1 mm")))
sketch12.addConstraint(Sketcher.Constraint("DistanceY", 7, 1, 7, 2, Q("2.1 mm")))
sketch12.addConstraint(Sketcher.Constraint("DistanceX", -1, 1, 6, 2, Q("6 mm")))
sketch12.addConstraint(Sketcher.Constraint("DistanceY", 7, 2, -1, 1, Q("36 mm")))
pad8 = body4.newObject("PartDesign::Pad", "Pad007")
pad8.Profile = sketch12
pad8.Length = 15
doc.recompute()

mirrored = body4.newObject("PartDesign::Mirrored", "Mirrored")
mirrored.Originals = [pad8]
mirrored.MirrorPlane = (doc.getObject("YZ_Plane003"), [""])
body4.Tip = mirrored
body5 = doc.addObject("PartDesign::Body", "Body004")

sketch13 = body5.newObject("Sketcher::SketchObject", "Sketch012")
sketch13.AttachmentSupport = (doc.getObject("XZ_Plane004"), [""])
sketch13.MapMode = "FlatFace"
sketch13.AttachmentOffset = App.Placement(V(0, 0, -11), App.Rotation())
sketch13.addGeometry(Part.LineSegment(V(-21.5, -14, 0), V(-21.5, -13, 0)), False)
sketch13.addGeometry(Part.LineSegment(V(-21.5, -13, 0), V(21.5, -13, 0)), False)
sketch13.addGeometry(Part.LineSegment(V(21.5, -13, 0), V(21.5, -14, 0)), False)
sketch13.addGeometry(Part.LineSegment(V(21.5, -14, 0), V(-21.5, -14, 0)), False)
sketch13.addConstraint(Sketcher.Constraint("Coincident", 0, 2, 1, 1))
sketch13.addConstraint(Sketcher.Constraint("Coincident", 1, 2, 2, 1))
sketch13.addConstraint(Sketcher.Constraint("Coincident", 2, 2, 3, 1))
sketch13.addConstraint(Sketcher.Constraint("Coincident", 3, 2, 0, 1))
sketch13.addConstraint(Sketcher.Constraint("Vertical", 0))
sketch13.addConstraint(Sketcher.Constraint("Horizontal", 1))
sketch13.addConstraint(Sketcher.Constraint("Vertical", 2))
sketch13.addConstraint(Sketcher.Constraint("Horizontal", 3))
sketch13.addConstraint(Sketcher.Constraint("DistanceX", 1, 1, 1, 2, Q("43 mm")))
sketch13.addConstraint(Sketcher.Constraint("DistanceY", 0, 1, 0, 2, Q("1 mm")))
sketch13.addConstraint(Sketcher.Constraint("DistanceY", 0, 2, -1, 1, Q("13 mm")))
sketch13.addConstraint(Sketcher.Constraint("DistanceX", 0, 2, -1, 1, Q("21.5 mm")))
pad9 = body5.newObject("PartDesign::Pad", "Pad008")
pad9.Profile = sketch13
pad9.Length = 9.4
doc.recompute()

boolean = body4.newObject("PartDesign::Boolean", "Boolean")
boolean.Type = "Fuse"
boolean.addObjects([body5])
doc.recompute()

boolean2 = body2.newObject("PartDesign::Boolean", "Boolean001")
boolean2.Type = "Fuse"
boolean2.addObjects([body3])

doc.recompute()
